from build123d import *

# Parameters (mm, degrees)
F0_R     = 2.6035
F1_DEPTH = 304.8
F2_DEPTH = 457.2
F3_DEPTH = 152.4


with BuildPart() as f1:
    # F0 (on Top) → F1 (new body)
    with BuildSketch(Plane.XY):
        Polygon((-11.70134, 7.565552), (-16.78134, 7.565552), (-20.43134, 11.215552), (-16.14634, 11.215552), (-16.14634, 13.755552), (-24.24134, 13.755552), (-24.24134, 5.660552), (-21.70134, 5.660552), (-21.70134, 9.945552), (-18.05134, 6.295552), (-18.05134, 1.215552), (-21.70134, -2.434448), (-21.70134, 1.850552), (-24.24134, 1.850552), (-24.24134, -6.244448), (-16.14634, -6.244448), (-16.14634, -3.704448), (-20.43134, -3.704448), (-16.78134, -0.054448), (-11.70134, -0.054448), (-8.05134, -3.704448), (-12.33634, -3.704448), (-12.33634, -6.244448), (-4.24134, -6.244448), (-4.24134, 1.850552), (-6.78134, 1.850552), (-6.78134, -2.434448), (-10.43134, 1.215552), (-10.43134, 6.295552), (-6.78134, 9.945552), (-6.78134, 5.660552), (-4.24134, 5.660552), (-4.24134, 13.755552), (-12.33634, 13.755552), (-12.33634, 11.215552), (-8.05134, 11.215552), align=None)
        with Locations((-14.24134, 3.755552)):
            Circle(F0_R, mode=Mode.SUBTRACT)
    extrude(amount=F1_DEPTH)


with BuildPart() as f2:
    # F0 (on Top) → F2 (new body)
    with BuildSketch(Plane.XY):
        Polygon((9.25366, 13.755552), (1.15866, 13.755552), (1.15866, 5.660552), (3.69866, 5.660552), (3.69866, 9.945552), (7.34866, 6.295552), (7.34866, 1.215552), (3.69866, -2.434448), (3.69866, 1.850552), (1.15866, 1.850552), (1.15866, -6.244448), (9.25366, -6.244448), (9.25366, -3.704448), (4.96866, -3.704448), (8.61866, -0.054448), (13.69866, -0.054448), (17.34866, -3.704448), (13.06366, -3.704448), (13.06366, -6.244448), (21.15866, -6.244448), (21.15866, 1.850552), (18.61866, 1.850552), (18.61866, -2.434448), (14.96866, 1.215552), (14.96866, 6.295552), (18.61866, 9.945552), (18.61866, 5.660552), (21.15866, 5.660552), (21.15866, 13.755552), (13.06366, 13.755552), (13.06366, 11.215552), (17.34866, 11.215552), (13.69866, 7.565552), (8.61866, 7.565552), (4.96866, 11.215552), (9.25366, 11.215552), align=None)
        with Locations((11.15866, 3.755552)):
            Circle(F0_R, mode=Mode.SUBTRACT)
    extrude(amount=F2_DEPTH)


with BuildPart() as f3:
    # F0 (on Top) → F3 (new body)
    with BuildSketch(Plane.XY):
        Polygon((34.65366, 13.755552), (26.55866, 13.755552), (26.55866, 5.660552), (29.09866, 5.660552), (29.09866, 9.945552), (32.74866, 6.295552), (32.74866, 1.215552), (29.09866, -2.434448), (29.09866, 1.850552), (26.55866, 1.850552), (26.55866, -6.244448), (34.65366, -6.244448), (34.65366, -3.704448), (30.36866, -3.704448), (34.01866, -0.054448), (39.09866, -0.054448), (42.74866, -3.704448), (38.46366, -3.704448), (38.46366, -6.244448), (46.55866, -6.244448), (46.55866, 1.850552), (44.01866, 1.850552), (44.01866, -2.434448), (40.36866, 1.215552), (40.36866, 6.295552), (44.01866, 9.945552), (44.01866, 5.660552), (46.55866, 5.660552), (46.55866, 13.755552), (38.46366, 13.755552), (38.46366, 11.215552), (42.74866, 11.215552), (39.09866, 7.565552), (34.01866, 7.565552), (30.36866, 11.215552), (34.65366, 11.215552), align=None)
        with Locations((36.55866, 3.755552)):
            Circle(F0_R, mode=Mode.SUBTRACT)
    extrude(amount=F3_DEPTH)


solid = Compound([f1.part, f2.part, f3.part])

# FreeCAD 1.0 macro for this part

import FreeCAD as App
import Part
import Sketcher
from FreeCAD import Vector
Q = App.Units.Quantity

doc = App.newDocument("Part")
body = doc.addObject("PartDesign::Body", "Body")

# Sketch on XY plane
sketch1 = body.newObject("Sketcher::SketchObject", "Sketch")
sketch1.AttachmentSupport = (doc.getObject("XY_Plane"), [""])
sketch1.MapMode = "FlatFace"
sketch1.addGeometry([
    Part.LineSegment(Vector(-11.7, 7.6, 0), Vector(-16.8, 7.6, 0)),  # 0
    Part.LineSegment(Vector(-16.8, 7.6, 0), Vector(-20.4, 11.2, 0)),  # 1
    Part.LineSegment(Vector(-20.4, 11.2, 0), Vector(-16.1, 11.2, 0)),  # 2
    Part.LineSegment(Vector(-16.1, 11.2, 0), Vector(-16.1, 13.8, 0)),  # 3
    Part.LineSegment(Vector(-16.1, 13.8, 0), Vector(-24.2, 13.8, 0)),  # 4
    Part.LineSegment(Vector(-24.2, 13.8, 0), Vector(-24.2, 5.7, 0)),  # 5
    Part.LineSegment(Vector(-24.2, 5.7, 0), Vector(-21.7, 5.7, 0)),  # 6
    Part.LineSegment(Vector(-21.7, 5.7, 0), Vector(-21.7, 9.9, 0)),  # 7
    Part.LineSegment(Vector(-21.7, 9.9, 0), Vector(-18.1, 6.3, 0)),  # 8
    Part.LineSegment(Vector(-18.1, 6.3, 0), Vector(-18.1, 1.2, 0)),  # 9
    Part.LineSegment(Vector(-18.1, 1.2, 0), Vector(-21.7, -2.4, 0)),  # 10
    Part.LineSegment(Vector(-21.7, -2.4, 0), Vector(-21.7, 1.9, 0)),  # 11
    Part.LineSegment(Vector(-21.7, 1.9, 0), Vector(-24.2, 1.9, 0)),  # 12
    Part.LineSegment(Vector(-24.2, 1.9, 0), Vector(-24.2, -6.2, 0)),  # 13
    Part.LineSegment(Vector(-24.2, -6.2, 0), Vector(-16.1, -6.2, 0)),  # 14
    Part.LineSegment(Vector(-16.1, -6.2, 0), Vector(-16.1, -3.7, 0)),  # 15
    Part.LineSegment(Vector(-16.1, -3.7, 0), Vector(-20.4, -3.7, 0)),  # 16
    Part.LineSegment(Vector(-20.4, -3.7, 0), Vector(-16.8, -0.1, 0)),  # 17
    Part.LineSegment(Vector(-16.8, -0.1, 0), Vector(-11.7, -0.1, 0)),  # 18
    Part.LineSegment(Vector(-11.7, -0.1, 0), Vector(-8.1, -3.7, 0)),  # 19
    Part.LineSegment(Vector(-8.1, -3.7, 0), Vector(-12.3, -3.7, 0)),  # 20
    Part.LineSegment(Vector(-12.3, -3.7, 0), Vector(-12.3, -6.2, 0)),  # 21
    Part.LineSegment(Vector(-12.3, -6.2, 0), Vector(-4.2, -6.2, 0)),  # 22
    Part.LineSegment(Vector(-4.2, -6.2, 0), Vector(-4.2, 1.9, 0)),  # 23
    Part.LineSegment(Vector(-4.2, 1.9, 0), Vector(-6.8, 1.9, 0)),  # 24
    Part.LineSegment(Vector(-6.8, 1.9, 0), Vector(-6.8, -2.4, 0)),  # 25
    Part.LineSegment(Vector(-6.8, -2.4, 0), Vector(-10.4, 1.2, 0)),  # 26
    Part.LineSegment(Vector(-10.4, 1.2, 0), Vector(-10.4, 6.3, 0)),  # 27
    Part.LineSegment(Vector(-10.4, 6.3, 0), Vector(-6.8, 9.9, 0)),  # 28
    Part.LineSegment(Vector(-6.8, 9.9, 0), Vector(-6.8, 5.7, 0)),  # 29
    Part.LineSegment(Vector(-6.8, 5.7, 0), Vector(-4.2, 5.7, 0)),  # 30
    Part.LineSegment(Vector(-4.2, 5.7, 0), Vector(-4.2, 13.8, 0)),  # 31
    Part.LineSegment(Vector(-4.2, 13.8, 0), Vector(-12.3, 13.8, 0)),  # 32
    Part.LineSegment(Vector(-12.3, 13.8, 0), Vector(-12.3, 11.2, 0)),  # 33
    Part.LineSegment(Vector(-12.3, 11.2, 0), Vector(-8.1, 11.2, 0)),  # 34
    Part.LineSegment(Vector(-8.1, 11.2, 0), Vector(-11.7, 7.6, 0)),  # 35
    Part.Circle(Vector(-14.2, 3.8, 0), Vector(0, 0, 1), 2.6),  # 36
], False)
sketch1.addConstraint([
    Sketcher.Constraint("Coincident", 0, 2, 1, 1),
    Sketcher.Constraint("Coincident", 1, 2, 2, 1),
    Sketcher.Constraint("Coincident", 2, 2, 3, 1),
    Sketcher.Constraint("Coincident", 3, 2, 4, 1),
    Sketcher.Constraint("Coincident", 4, 2, 5, 1),
    Sketcher.Constraint("Coincident", 5, 2, 6, 1),
    Sketcher.Constraint("Coincident", 6, 2, 7, 1),
    Sketcher.Constraint("Coincident", 7, 2, 8, 1),
    Sketcher.Constraint("Coincident", 8, 2, 9, 1),
    Sketcher.Constraint("Coincident", 9, 2, 10, 1),
    Sketcher.Constraint("Coincident", 10, 2, 11, 1),
    Sketcher.Constraint("Coincident", 11, 2, 12, 1),
    Sketcher.Constraint("Coincident", 12, 2, 13, 1),
    Sketcher.Constraint("Coincident", 13, 2, 14, 1),
    Sketcher.Constraint("Coincident", 14, 2, 15, 1),
    Sketcher.Constraint("Coincident", 15, 2, 16, 1),
    Sketcher.Constraint("Coincident", 16, 2, 17, 1),
    Sketcher.Constraint("Coincident", 17, 2, 18, 1),
    Sketcher.Constraint("Coincident", 18, 2, 19, 1),
    Sketcher.Constraint("Coincident", 19, 2, 20, 1),
    Sketcher.Constraint("Coincident", 20, 2, 21, 1),
    Sketcher.Constraint("Coincident", 21, 2, 22, 1),
    Sketcher.Constraint("Coincident", 22, 2, 23, 1),
    Sketcher.Constraint("Coincident", 23, 2, 24, 1),
    Sketcher.Constraint("Coincident", 24, 2, 25, 1),
    Sketcher.Constraint("Coincident", 25, 2, 26, 1),
    Sketcher.Constraint("Coincident", 26, 2, 27, 1),
    Sketcher.Constraint("Coincident", 27, 2, 28, 1),
    Sketcher.Constraint("Coincident", 28, 2, 29, 1),
    Sketcher.Constraint("Coincident", 29, 2, 30, 1),
    Sketcher.Constraint("Coincident", 30, 2, 31, 1),
    Sketcher.Constraint("Coincident", 31, 2, 32, 1),
    Sketcher.Constraint("Coincident", 32, 2, 33, 1),
    Sketcher.Constraint("Coincident", 33, 2, 34, 1),
    Sketcher.Constraint("Coincident", 34, 2, 35, 1),
    Sketcher.Constraint("Coincident", 35, 2, 0, 1),
    Sketcher.Constraint("Horizontal", 0),
    Sketcher.Constraint("Horizontal", 2),
    Sketcher.Constraint("Vertical", 3),
    Sketcher.Constraint("Horizontal", 4),
    Sketcher.Constraint("Vertical", 5),
    Sketcher.Constraint("Horizontal", 6),
    Sketcher.Constraint("Vertical", 7),
    Sketcher.Constraint("Vertical", 9),
    Sketcher.Constraint("Vertical", 11),
    Sketcher.Constraint("Horizontal", 12),
    Sketcher.Constraint("Vertical", 13),
    Sketcher.Constraint("Horizontal", 14),
    Sketcher.Constraint("Vertical", 15),
    Sketcher.Constraint("Horizontal", 16),
    Sketcher.Constraint("Horizontal", 18),
    Sketcher.Constraint("Horizontal", 20),
    Sketcher.Constraint("Vertical", 21),
    Sketcher.Constraint("Horizontal", 22),
    Sketcher.Constraint("Vertical", 23),
    Sketcher.Constraint("Horizontal", 24),
    Sketcher.Constraint("Vertical", 25),
    Sketcher.Constraint("Vertical", 27),
    Sketcher.Constraint("Vertical", 29),
    Sketcher.Constraint("Horizontal", 30),
    Sketcher.Constraint("Vertical", 31),
    Sketcher.Constraint("Horizontal", 32),
    Sketcher.Constraint("Vertical", 33),
    Sketcher.Constraint("Horizontal", 34),
    Sketcher.Constraint("Parallel", 1, 8),
    Sketcher.Constraint("Perpendicular", 8, 10),
    Sketcher.Constraint("Parallel", 10, 17),
    Sketcher.Constraint("Perpendicular", 17, 19),
    Sketcher.Constraint("Parallel", 19, 26),
    Sketcher.Constraint("Perpendicular", 26, 28),
    Sketcher.Constraint("Parallel", 28, 35),
    Sketcher.Constraint("Horizontal", 16, 2, 19, 2),
    Sketcher.Constraint("Horizontal", 14, 2, 21, 2),
    Sketcher.Constraint("Horizontal", 12, 2, 23, 2),
    Sketcher.Constraint("Horizontal", 10, 2, 25, 2),
    Sketcher.Constraint("Horizontal", 9, 2, 26, 2),
    Sketcher.Constraint("Horizontal", 8, 2, 27, 2),
    Sketcher.Constraint("Horizontal", 7, 2, 28, 2),
    Sketcher.Constraint("Horizontal", 6, 2, 29, 2),
    Sketcher.Constraint("Horizontal", 4, 2, 31, 2),
    Sketcher.Constraint("Horizontal", 2, 2, 33, 2),
    Sketcher.Constraint("Vertical", 7, 2, 10, 2),
    Sketcher.Constraint("Vertical", 5, 2, 12, 2),
    Sketcher.Constraint("Vertical", 3, 2, 14, 2),
    Sketcher.Constraint("Vertical", 1, 2, 16, 2),
    Sketcher.Constraint("Vertical", 0, 2, 17, 2),
    Sketcher.Constraint("Vertical", 25, 2, 28, 2),
    Sketcher.Constraint("Vertical", 23, 2, 30, 2),
    Sketcher.Constraint("Vertical", 21, 2, 32, 2),
    Sketcher.Constraint("Vertical", 19, 2, 34, 2),
    Sketcher.Constraint("Equal", 16, 20),
    Sketcher.Constraint("Equal", 14, 22),
    Sketcher.Constraint("Equal", 12, 24),
    Sketcher.Constraint("Equal", 30, 3),
    Sketcher.Constraint("Equal", 32, 5),
    Sketcher.Constraint("Equal", 34, 7),
    Sketcher.Constraint("Equal", 18, 9),
    Sketcher.Constraint("Equal", 7, 11),
    Sketcher.Constraint("Equal", 5, 13),
    Sketcher.Constraint("Equal", 3, 15),
    Sketcher.Constraint("Equal", 1, 8),
    Sketcher.Constraint("Diameter", 36, Q("0.205 in")),
    Sketcher.Constraint("DistanceX", 0, 2, 0, 1, Q("0.2 in")),
    Sketcher.Constraint("DistanceX", 6, 1, 6, 2, Q("0.1 in")),
    Sketcher.Constraint("DistanceX", 0, 2, 36, 3, Q("0.1 in")),
    Sketcher.Constraint("DistanceY", 36, 3, 8, 2, Q("0.1 in")),
    Sketcher.Constraint("DistanceY", 36, 3, 0, 2, Q("0.15 in")),
    Sketcher.Constraint("DistanceY", 11, 2, 6, 2, Q("0.15 in")),
    Sketcher.Constraint("DistanceX", 2, 1, 2, 2, 4.285),
    Sketcher.Constraint("DistanceX", 36, 3, -1, 1, 14.24134),
    Sketcher.Constraint("DistanceY", -1, 1, 36, 3, 3.755552),
])
pad1 = body.newObject("PartDesign::Pad", "Pad")
pad1.Profile = sketch1
pad1.Length = Q("12 in")
body2 = doc.addObject("PartDesign::Body", "Body001")

# Sketch on XY plane
sketch2 = body2.newObject("Sketcher::SketchObject", "Sketch001")
sketch2.AttachmentSupport = (doc.getObject("XY_Plane001"), [""])
sketch2.MapMode = "FlatFace"
sketch2.addGeometry([
    Part.LineSegment(Vector(9.3, 13.8, 0), Vector(1.2, 13.8, 0)),  # 0
    Part.LineSegment(Vector(1.2, 13.8, 0), Vector(1.2, 5.7, 0)),  # 1
    Part.LineSegment(Vector(1.2, 5.7, 0), Vector(3.7, 5.7, 0)),  # 2
    Part.LineSegment(Vector(3.7, 5.7, 0), Vector(3.7, 9.9, 0)),  # 3
    Part.LineSegment(Vector(3.7, 9.9, 0), Vector(7.3, 6.3, 0)),  # 4
    Part.LineSegment(Vector(7.3, 6.3, 0), Vector(7.3, 1.2, 0)),  # 5
    Part.LineSegment(Vector(7.3, 1.2, 0), Vector(3.7, -2.4, 0)),  # 6
    Part.LineSegment(Vector(3.7, -2.4, 0), Vector(3.7, 1.9, 0)),  # 7
    Part.LineSegment(Vector(3.7, 1.9, 0), Vector(1.2, 1.9, 0)),  # 8
    Part.LineSegment(Vector(1.2, 1.9, 0), Vector(1.2, -6.2, 0)),  # 9
    Part.LineSegment(Vector(1.2, -6.2, 0), Vector(9.3, -6.2, 0)),  # 10
    Part.LineSegment(Vector(9.3, -6.2, 0), Vector(9.3, -3.7, 0)),  # 11
    Part.LineSegment(Vector(9.3, -3.7, 0), Vector(5, -3.7, 0)),  # 12
    Part.LineSegment(Vector(5, -3.7, 0), Vector(8.6, -0.1, 0)),  # 13
    Part.LineSegment(Vector(8.6, -0.1, 0), Vector(13.7, -0.1, 0)),  # 14
    Part.LineSegment(Vector(13.7, -0.1, 0), Vector(17.3, -3.7, 0)),  # 15
    Part.LineSegment(Vector(17.3, -3.7, 0), Vector(13.1, -3.7, 0)),  # 16
    Part.LineSegment(Vector(13.1, -3.7, 0), Vector(13.1, -6.2, 0)),  # 17
    Part.LineSegment(Vector(13.1, -6.2, 0), Vector(21.2, -6.2, 0)),  # 18
    Part.LineSegment(Vector(21.2, -6.2, 0), Vector(21.2, 1.9, 0)),  # 19
    Part.LineSegment(Vector(21.2, 1.9, 0), Vector(18.6, 1.9, 0)),  # 20
    Part.LineSegment(Vector(18.6, 1.9, 0), Vector(18.6, -2.4, 0)),  # 21
    Part.LineSegment(Vector(18.6, -2.4, 0), Vector(15, 1.2, 0)),  # 22
    Part.LineSegment(Vector(15, 1.2, 0), Vector(15, 6.3, 0)),  # 23
    Part.LineSegment(Vector(15, 6.3, 0), Vector(18.6, 9.9, 0)),  # 24
    Part.LineSegment(Vector(18.6, 9.9, 0), Vector(18.6, 5.7, 0)),  # 25
    Part.LineSegment(Vector(18.6, 5.7, 0), Vector(21.2, 5.7, 0)),  # 26
    Part.LineSegment(Vector(21.2, 5.7, 0), Vector(21.2, 13.8, 0)),  # 27
    Part.LineSegment(Vector(21.2, 13.8, 0), Vector(13.1, 13.8, 0)),  # 28
    Part.LineSegment(Vector(13.1, 13.8, 0), Vector(13.1, 11.2, 0)),  # 29
    Part.LineSegment(Vector(13.1, 11.2, 0), Vector(17.3, 11.2, 0)),  # 30
    Part.LineSegment(Vector(17.3, 11.2, 0), Vector(13.7, 7.6, 0)),  # 31
    Part.LineSegment(Vector(13.7, 7.6, 0), Vector(8.6, 7.6, 0)),  # 32
    Part.LineSegment(Vector(8.6, 7.6, 0), Vector(5, 11.2, 0)),  # 33
    Part.LineSegment(Vector(5, 11.2, 0), Vector(9.3, 11.2, 0)),  # 34
    Part.LineSegment(Vector(9.3, 11.2, 0), Vector(9.3, 13.8, 0)),  # 35
    Part.Circle(Vector(11.2, 3.8, 0), Vector(0, 0, 1), 2.6),  # 36
], False)
sketch2.addConstraint([
    Sketcher.Constraint("Coincident", 0, 2, 1, 1),
    Sketcher.Constraint("Coincident", 1, 2, 2, 1),
    Sketcher.Constraint("Coincident", 2, 2, 3, 1),
    Sketcher.Constraint("Coincident", 3, 2, 4, 1),
    Sketcher.Constraint("Coincident", 4, 2, 5, 1),
    Sketcher.Constraint("Coincident", 5, 2, 6, 1),
    Sketcher.Constraint("Coincident", 6, 2, 7, 1),
    Sketcher.Constraint("Coincident", 7, 2, 8, 1),
    Sketcher.Constraint("Coincident", 8, 2, 9, 1),
    Sketcher.Constraint("Coincident", 9, 2, 10, 1),
    Sketcher.Constraint("Coincident", 10, 2, 11, 1),
    Sketcher.Constraint("Coincident", 11, 2, 12, 1),
    Sketcher.Constraint("Coincident", 12, 2, 13, 1),
    Sketcher.Constraint("Coincident", 13, 2, 14, 1),
    Sketcher.Constraint("Coincident", 14, 2, 15, 1),
    Sketcher.Constraint("Coincident", 15, 2, 16, 1),
    Sketcher.Constraint("Coincident", 16, 2, 17, 1),
    Sketcher.Constraint("Coincident", 17, 2, 18, 1),
    Sketcher.Constraint("Coincident", 18, 2, 19, 1),
    Sketcher.Constraint("Coincident", 19, 2, 20, 1),
    Sketcher.Constraint("Coincident", 20, 2, 21, 1),
    Sketcher.Constraint("Coincident", 21, 2, 22, 1),
    Sketcher.Constraint("Coincident", 22, 2, 23, 1),
    Sketcher.Constraint("Coincident", 23, 2, 24, 1),
    Sketcher.Constraint("Coincident", 24, 2, 25, 1),
    Sketcher.Constraint("Coincident", 25, 2, 26, 1),
    Sketcher.Constraint("Coincident", 26, 2, 27, 1),
    Sketcher.Constraint("Coincident", 27, 2, 28, 1),
    Sketcher.Constraint("Coincident", 28, 2, 29, 1),
    Sketcher.Constraint("Coincident", 29, 2, 30, 1),
    Sketcher.Constraint("Coincident", 30, 2, 31, 1),
    Sketcher.Constraint("Coincident", 31, 2, 32, 1),
    Sketcher.Constraint("Coincident", 32, 2, 33, 1),
    Sketcher.Constraint("Coincident", 33, 2, 34, 1),
    Sketcher.Constraint("Coincident", 34, 2, 35, 1),
    Sketcher.Constraint("Coincident", 35, 2, 0, 1),
    Sketcher.Constraint("Horizontal", 0),
    Sketcher.Constraint("Vertical", 1),
    Sketcher.Constraint("Horizontal", 2),
    Sketcher.Constraint("Vertical", 3),
    Sketcher.Constraint("Vertical", 5),
    Sketcher.Constraint("Vertical", 7),
    Sketcher.Constraint("Horizontal", 8),
    Sketcher.Constraint("Vertical", 9),
    Sketcher.Constraint("Horizontal", 10),
    Sketcher.Constraint("Vertical", 11),
    Sketcher.Constraint("Horizontal", 12),
    Sketcher.Constraint("Horizontal", 14),
    Sketcher.Constraint("Horizontal", 16),
    Sketcher.Constraint("Vertical", 17),
    Sketcher.Constraint("Horizontal", 18),
    Sketcher.Constraint("Vertical", 19),
    Sketcher.Constraint("Horizontal", 20),
    Sketcher.Constraint("Vertical", 21),
    Sketcher.Constraint("Vertical", 23),
    Sketcher.Constraint("Vertical", 25),
    Sketcher.Constraint("Horizontal", 26),
    Sketcher.Constraint("Vertical", 27),
    Sketcher.Constraint("Horizontal", 28),
    Sketcher.Constraint("Vertical", 29),
    Sketcher.Constraint("Horizontal", 30),
    Sketcher.Constraint("Horizontal", 32),
    Sketcher.Constraint("Horizontal", 34),
    Sketcher.Constraint("Vertical", 35),
    Sketcher.Constraint("Perpendicular", 4, 6),
    Sketcher.Constraint("Parallel", 6, 13),
    Sketcher.Constraint("Perpendicular", 13, 15),
    Sketcher.Constraint("Parallel", 15, 22),
    Sketcher.Constraint("Perpendicular", 22, 24),
    Sketcher.Constraint("Parallel", 24, 31),
    Sketcher.Constraint("Perpendicular", 31, 33),
    Sketcher.Constraint("Horizontal", 12, 2, 15, 2),
    Sketcher.Constraint("Horizontal", 10, 2, 17, 2),
    Sketcher.Constraint("Horizontal", 8, 2, 19, 2),
    Sketcher.Constraint("Horizontal", 6, 2, 21, 2),
    Sketcher.Constraint("Horizontal", 5, 2, 22, 2),
    Sketcher.Constraint("Horizontal", 4, 2, 23, 2),
    Sketcher.Constraint("Horizontal", 3, 2, 24, 2),
    Sketcher.Constraint("Horizontal", 2, 2, 25, 2),
    Sketcher.Constraint("Horizontal", 0, 2, 27, 2),
    Sketcher.Constraint("Horizontal", 30, 2, 33, 2),
    Sketcher.Constraint("Vertical", 3, 2, 6, 2),
    Sketcher.Constraint("Vertical", 1, 2, 8, 2),
    Sketcher.Constraint("Vertical", 21, 2, 24, 2),
    Sketcher.Constraint("Vertical", 19, 2, 26, 2),
    Sketcher.Constraint("Vertical", 17, 2, 28, 2),
    Sketcher.Constraint("Vertical", 15, 2, 30, 2),
    Sketcher.Constraint("Vertical", 14, 2, 31, 2),
    Sketcher.Constraint("Vertical", 13, 2, 32, 2),
    Sketcher.Constraint("Vertical", 11, 2, 34, 2),
    Sketcher.Constraint("Equal", 12, 16),
    Sketcher.Constraint("Equal", 10, 18),
    Sketcher.Constraint("Equal", 8, 20),
    Sketcher.Constraint("Equal", 28, 1),
    Sketcher.Constraint("Equal", 34, 3),
    Sketcher.Constraint("Equal", 32, 5),
    Sketcher.Constraint("Equal", 3, 7),
    Sketcher.Constraint("Equal", 1, 9),
    Sketcher.Constraint("Equal", 26, 11),
    Sketcher.Constraint("Equal", 17, 29),
    Sketcher.Constraint("Equal", 6, 13),
    Sketcher.Constraint("Diameter", 36, Q("0.205 in")),
    Sketcher.Constraint("DistanceX", 2, 1, 2, 2, Q("0.1 in")),
    Sketcher.Constraint("DistanceX", 14, 1, 14, 2, Q("0.2 in")),
    Sketcher.Constraint("DistanceY", 36, 3, 4, 2, Q("0.1 in")),
    Sketcher.Constraint("DistanceX", 13, 2, 36, 3, Q("0.1 in")),
    Sketcher.Constraint("DistanceX", 4, 2, 23, 2, Q("0.3 in")),
    Sketcher.Constraint("DistanceY", 7, 2, 2, 2, Q("0.15 in")),
    Sketcher.Constraint("DistanceX", 0, 2, 0, 1, 8.095),
    Sketcher.Constraint("DistanceX", -1, 1, 36, 3, 11.15866),
    Sketcher.Constraint("DistanceY", -1, 1, 36, 3, 3.755552),
])
pad2 = body2.newObject("PartDesign::Pad", "Pad001")
pad2.Profile = sketch2
pad2.Length = Q("18 in")
body3 = doc.addObject("PartDesign::Body", "Body002")

# Sketch on XY plane
sketch3 = body3.newObject("Sketcher::SketchObject", "Sketch002")
sketch3.AttachmentSupport = (doc.getObject("XY_Plane002"), [""])
sketch3.MapMode = "FlatFace"
sketch3.addGeometry([
    Part.LineSegment(Vector(34.7, 13.8, 0), Vector(26.6, 13.8, 0)),  # 0
    Part.LineSegment(Vector(26.6, 13.8, 0), Vector(26.6, 5.7, 0)),  # 1
    Part.LineSegment(Vector(26.6, 5.7, 0), Vector(29.1, 5.7, 0)),  # 2
    Part.LineSegment(Vector(29.1, 5.7, 0), Vector(29.1, 9.9, 0)),  # 3
    Part.LineSegment(Vector(29.1, 9.9, 0), Vector(32.7, 6.3, 0)),  # 4
    Part.LineSegment(Vector(32.7, 6.3, 0), Vector(32.7, 1.2, 0)),  # 5
    Part.LineSegment(Vector(32.7, 1.2, 0), Vector(29.1, -2.4, 0)),  # 6
    Part.LineSegment(Vector(29.1, -2.4, 0), Vector(29.1, 1.9, 0)),  # 7
    Part.LineSegment(Vector(29.1, 1.9, 0), Vector(26.6, 1.9, 0)),  # 8
    Part.LineSegment(Vector(26.6, 1.9, 0), Vector(26.6, -6.2, 0)),  # 9
    Part.LineSegment(Vector(26.6, -6.2, 0), Vector(34.7, -6.2, 0)),  # 10
    Part.LineSegment(Vector(34.7, -6.2, 0), Vector(34.7, -3.7, 0)),  # 11
    Part.LineSegment(Vector(34.7, -3.7, 0), Vector(30.4, -3.7, 0)),  # 12
    Part.LineSegment(Vector(30.4, -3.7, 0), Vector(34, -0.1, 0)),  # 13
    Part.LineSegment(Vector(34, -0.1, 0), Vector(39.1, -0.1, 0)),  # 14
    Part.LineSegment(Vector(39.1, -0.1, 0), Vector(42.7, -3.7, 0)),  # 15
    Part.LineSegment(Vector(42.7, -3.7, 0), Vector(38.5, -3.7, 0)),  # 16
    Part.LineSegment(Vector(38.5, -3.7, 0), Vector(38.5, -6.2, 0)),  # 17
    Part.LineSegment(Vector(38.5, -6.2, 0), Vector(46.6, -6.2, 0)),  # 18
    Part.LineSegment(Vector(46.6, -6.2, 0), Vector(46.6, 1.9, 0)),  # 19
    Part.LineSegment(Vector(46.6, 1.9, 0), Vector(44, 1.9, 0)),  # 20
    Part.LineSegment(Vector(44, 1.9, 0), Vector(44, -2.4, 0)),  # 21
    Part.LineSegment(Vector(44, -2.4, 0), Vector(40.4, 1.2, 0)),  # 22
    Part.LineSegment(Vector(40.4, 1.2, 0), Vector(40.4, 6.3, 0)),  # 23
    Part.LineSegment(Vector(40.4, 6.3, 0), Vector(44, 9.9, 0)),  # 24
    Part.LineSegment(Vector(44, 9.9, 0), Vector(44, 5.7, 0)),  # 25
    Part.LineSegment(Vector(44, 5.7, 0), Vector(46.6, 5.7, 0)),  # 26
    Part.LineSegment(Vector(46.6, 5.7, 0), Vector(46.6, 13.8, 0)),  # 27
    Part.LineSegment(Vector(46.6, 13.8, 0), Vector(38.5, 13.8, 0)),  # 28
    Part.LineSegment(Vector(38.5, 13.8, 0), Vector(38.5, 11.2, 0)),  # 29
    Part.LineSegment(Vector(38.5, 11.2, 0), Vector(42.7, 11.2, 0)),  # 30
    Part.LineSegment(Vector(42.7, 11.2, 0), Vector(39.1, 7.6, 0)),  # 31
    Part.LineSegment(Vector(39.1, 7.6, 0), Vector(34, 7.6, 0)),  # 32
    Part.LineSegment(Vector(34, 7.6, 0), Vector(30.4, 11.2, 0)),  # 33
    Part.LineSegment(Vector(30.4, 11.2, 0), Vector(34.7, 11.2, 0)),  # 34
    Part.LineSegment(Vector(34.7, 11.2, 0), Vector(34.7, 13.8, 0)),  # 35
    Part.Circle(Vector(36.6, 3.8, 0), Vector(0, 0, 1), 2.6),  # 36
], False)
sketch3.addConstraint([
    Sketcher.Constraint("Coincident", 0, 2, 1, 1),
    Sketcher.Constraint("Coincident", 1, 2, 2, 1),
    Sketcher.Constraint("Coincident", 2, 2, 3, 1),
    Sketcher.Constraint("Coincident", 3, 2, 4, 1),
    Sketcher.Constraint("Coincident", 4, 2, 5, 1),
    Sketcher.Constraint("Coincident", 5, 2, 6, 1),
    Sketcher.Constraint("Coincident", 6, 2, 7, 1),
    Sketcher.Constraint("Coincident", 7, 2, 8, 1),
    Sketcher.Constraint("Coincident", 8, 2, 9, 1),
    Sketcher.Constraint("Coincident", 9, 2, 10, 1),
    Sketcher.Constraint("Coincident", 10, 2, 11, 1),
    Sketcher.Constraint("Coincident", 11, 2, 12, 1),
    Sketcher.Constraint("Coincident", 12, 2, 13, 1),
    Sketcher.Constraint("Coincident", 13, 2, 14, 1),
    Sketcher.Constraint("Coincident", 14, 2, 15, 1),
    Sketcher.Constraint("Coincident", 15, 2, 16, 1),
    Sketcher.Constraint("Coincident", 16, 2, 17, 1),
    Sketcher.Constraint("Coincident", 17, 2, 18, 1),
    Sketcher.Constraint("Coincident", 18, 2, 19, 1),
    Sketcher.Constraint("Coincident", 19, 2, 20, 1),
    Sketcher.Constraint("Coincident", 20, 2, 21, 1),
    Sketcher.Constraint("Coincident", 21, 2, 22, 1),
    Sketcher.Constraint("Coincident", 22, 2, 23, 1),
    Sketcher.Constraint("Coincident", 23, 2, 24, 1),
    Sketcher.Constraint("Coincident", 24, 2, 25, 1),
    Sketcher.Constraint("Coincident", 25, 2, 26, 1),
    Sketcher.Constraint("Coincident", 26, 2, 27, 1),
    Sketcher.Constraint("Coincident", 27, 2, 28, 1),
    Sketcher.Constraint("Coincident", 28, 2, 29, 1),
    Sketcher.Constraint("Coincident", 29, 2, 30, 1),
    Sketcher.Constraint("Coincident", 30, 2, 31, 1),
    Sketcher.Constraint("Coincident", 31, 2, 32, 1),
    Sketcher.Constraint("Coincident", 32, 2, 33, 1),
    Sketcher.Constraint("Coincident", 33, 2, 34, 1),
    Sketcher.Constraint("Coincident", 34, 2, 35, 1),
    Sketcher.Constraint("Coincident", 35, 2, 0, 1),
    Sketcher.Constraint("Horizontal", 0),
    Sketcher.Constraint("Vertical", 1),
    Sketcher.Constraint("Horizontal", 2),
    Sketcher.Constraint("Vertical", 3),
    Sketcher.Constraint("Vertical", 5),
    Sketcher.Constraint("Vertical", 7),
    Sketcher.Constraint("Horizontal", 8),
    Sketcher.Constraint("Vertical", 9),
    Sketcher.Constraint("Horizontal", 10),
    Sketcher.Constraint("Vertical", 11),
    Sketcher.Constraint("Horizontal", 12),
    Sketcher.Constraint("Horizontal", 14),
    Sketcher.Constraint("Horizontal", 16),
    Sketcher.Constraint("Vertical", 17),
    Sketcher.Constraint("Horizontal", 18),
    Sketcher.Constraint("Vertical", 19),
    Sketcher.Constraint("Horizontal", 20),
    Sketcher.Constraint("Vertical", 21),
    Sketcher.Constraint("Vertical", 23),
    Sketcher.Constraint("Vertical", 25),
    Sketcher.Constraint("Horizontal", 26),
    Sketcher.Constraint("Vertical", 27),
    Sketcher.Constraint("Horizontal", 28),
    Sketcher.Constraint("Vertical", 29),
    Sketcher.Constraint("Horizontal", 30),
    Sketcher.Constraint("Horizontal", 32),
    Sketcher.Constraint("Horizontal", 34),
    Sketcher.Constraint("Vertical", 35),
    Sketcher.Constraint("Perpendicular", 4, 6),
    Sketcher.Constraint("Parallel", 6, 13),
    Sketcher.Constraint("Perpendicular", 13, 15),
    Sketcher.Constraint("Parallel", 15, 22),
    Sketcher.Constraint("Perpendicular", 22, 24),
    Sketcher.Constraint("Parallel", 24, 31),
    Sketcher.Constraint("Perpendicular", 31, 33),
    Sketcher.Constraint("Horizontal", 12, 2, 15, 2),
    Sketcher.Constraint("Horizontal", 10, 2, 17, 2),
    Sketcher.Constraint("Horizontal", 8, 2, 19, 2),
    Sketcher.Constraint("Horizontal", 6, 2, 21, 2),
    Sketcher.Constraint("Horizontal", 5, 2, 22, 2),
    Sketcher.Constraint("Horizontal", 4, 2, 23, 2),
    Sketcher.Constraint("Horizontal", 3, 2, 24, 2),
    Sketcher.Constraint("Horizontal", 2, 2, 25, 2),
    Sketcher.Constraint("Horizontal", 0, 2, 27, 2),
    Sketcher.Constraint("Horizontal", 30, 2, 33, 2),
    Sketcher.Constraint("Vertical", 3, 2, 6, 2),
    Sketcher.Constraint("Vertical", 1, 2, 8, 2),
    Sketcher.Constraint("Vertical", 21, 2, 24, 2),
    Sketcher.Constraint("Vertical", 19, 2, 26, 2),
    Sketcher.Constraint("Vertical", 17, 2, 28, 2),
    Sketcher.Constraint("Vertical", 15, 2, 30, 2),
    Sketcher.Constraint("Vertical", 14, 2, 31, 2),
    Sketcher.Constraint("Vertical", 13, 2, 32, 2),
    Sketcher.Constraint("Vertical", 11, 2, 34, 2),
    Sketcher.Constraint("Equal", 12, 16),
    Sketcher.Constraint("Equal", 10, 18),
    Sketcher.Constraint("Equal", 8, 20),
    Sketcher.Constraint("Equal", 28, 1),
    Sketcher.Constraint("Equal", 34, 3),
    Sketcher.Constraint("Equal", 32, 5),
    Sketcher.Constraint("Equal", 3, 7),
    Sketcher.Constraint("Equal", 1, 9),
    Sketcher.Constraint("Equal", 26, 11),
    Sketcher.Constraint("Equal", 17, 29),
    Sketcher.Constraint("Equal", 6, 13),
    Sketcher.Constraint("Diameter", 36, Q("0.205 in")),
    Sketcher.Constraint("DistanceX", 2, 1, 2, 2, Q("0.1 in")),
    Sketcher.Constraint("DistanceX", 14, 1, 14, 2, Q("0.2 in")),
    Sketcher.Constraint("DistanceY", 36, 3, 4, 2, Q("0.1 in")),
    Sketcher.Constraint("DistanceX", 13, 2, 36, 3, Q("0.1 in")),
    Sketcher.Constraint("DistanceX", 4, 2, 23, 2, Q("0.3 in")),
    Sketcher.Constraint("DistanceY", 7, 2, 2, 2, Q("0.15 in")),
    Sketcher.Constraint("DistanceX", 0, 2, 0, 1, 8.095),
    Sketcher.Constraint("DistanceX", -1, 1, 36, 3, 36.55866),
    Sketcher.Constraint("DistanceY", -1, 1, 36, 3, 3.755552),
])
pad3 = body3.newObject("PartDesign::Pad", "Pad002")
pad3.Profile = sketch3
pad3.Length = Q("6 in")

doc.recompute()
